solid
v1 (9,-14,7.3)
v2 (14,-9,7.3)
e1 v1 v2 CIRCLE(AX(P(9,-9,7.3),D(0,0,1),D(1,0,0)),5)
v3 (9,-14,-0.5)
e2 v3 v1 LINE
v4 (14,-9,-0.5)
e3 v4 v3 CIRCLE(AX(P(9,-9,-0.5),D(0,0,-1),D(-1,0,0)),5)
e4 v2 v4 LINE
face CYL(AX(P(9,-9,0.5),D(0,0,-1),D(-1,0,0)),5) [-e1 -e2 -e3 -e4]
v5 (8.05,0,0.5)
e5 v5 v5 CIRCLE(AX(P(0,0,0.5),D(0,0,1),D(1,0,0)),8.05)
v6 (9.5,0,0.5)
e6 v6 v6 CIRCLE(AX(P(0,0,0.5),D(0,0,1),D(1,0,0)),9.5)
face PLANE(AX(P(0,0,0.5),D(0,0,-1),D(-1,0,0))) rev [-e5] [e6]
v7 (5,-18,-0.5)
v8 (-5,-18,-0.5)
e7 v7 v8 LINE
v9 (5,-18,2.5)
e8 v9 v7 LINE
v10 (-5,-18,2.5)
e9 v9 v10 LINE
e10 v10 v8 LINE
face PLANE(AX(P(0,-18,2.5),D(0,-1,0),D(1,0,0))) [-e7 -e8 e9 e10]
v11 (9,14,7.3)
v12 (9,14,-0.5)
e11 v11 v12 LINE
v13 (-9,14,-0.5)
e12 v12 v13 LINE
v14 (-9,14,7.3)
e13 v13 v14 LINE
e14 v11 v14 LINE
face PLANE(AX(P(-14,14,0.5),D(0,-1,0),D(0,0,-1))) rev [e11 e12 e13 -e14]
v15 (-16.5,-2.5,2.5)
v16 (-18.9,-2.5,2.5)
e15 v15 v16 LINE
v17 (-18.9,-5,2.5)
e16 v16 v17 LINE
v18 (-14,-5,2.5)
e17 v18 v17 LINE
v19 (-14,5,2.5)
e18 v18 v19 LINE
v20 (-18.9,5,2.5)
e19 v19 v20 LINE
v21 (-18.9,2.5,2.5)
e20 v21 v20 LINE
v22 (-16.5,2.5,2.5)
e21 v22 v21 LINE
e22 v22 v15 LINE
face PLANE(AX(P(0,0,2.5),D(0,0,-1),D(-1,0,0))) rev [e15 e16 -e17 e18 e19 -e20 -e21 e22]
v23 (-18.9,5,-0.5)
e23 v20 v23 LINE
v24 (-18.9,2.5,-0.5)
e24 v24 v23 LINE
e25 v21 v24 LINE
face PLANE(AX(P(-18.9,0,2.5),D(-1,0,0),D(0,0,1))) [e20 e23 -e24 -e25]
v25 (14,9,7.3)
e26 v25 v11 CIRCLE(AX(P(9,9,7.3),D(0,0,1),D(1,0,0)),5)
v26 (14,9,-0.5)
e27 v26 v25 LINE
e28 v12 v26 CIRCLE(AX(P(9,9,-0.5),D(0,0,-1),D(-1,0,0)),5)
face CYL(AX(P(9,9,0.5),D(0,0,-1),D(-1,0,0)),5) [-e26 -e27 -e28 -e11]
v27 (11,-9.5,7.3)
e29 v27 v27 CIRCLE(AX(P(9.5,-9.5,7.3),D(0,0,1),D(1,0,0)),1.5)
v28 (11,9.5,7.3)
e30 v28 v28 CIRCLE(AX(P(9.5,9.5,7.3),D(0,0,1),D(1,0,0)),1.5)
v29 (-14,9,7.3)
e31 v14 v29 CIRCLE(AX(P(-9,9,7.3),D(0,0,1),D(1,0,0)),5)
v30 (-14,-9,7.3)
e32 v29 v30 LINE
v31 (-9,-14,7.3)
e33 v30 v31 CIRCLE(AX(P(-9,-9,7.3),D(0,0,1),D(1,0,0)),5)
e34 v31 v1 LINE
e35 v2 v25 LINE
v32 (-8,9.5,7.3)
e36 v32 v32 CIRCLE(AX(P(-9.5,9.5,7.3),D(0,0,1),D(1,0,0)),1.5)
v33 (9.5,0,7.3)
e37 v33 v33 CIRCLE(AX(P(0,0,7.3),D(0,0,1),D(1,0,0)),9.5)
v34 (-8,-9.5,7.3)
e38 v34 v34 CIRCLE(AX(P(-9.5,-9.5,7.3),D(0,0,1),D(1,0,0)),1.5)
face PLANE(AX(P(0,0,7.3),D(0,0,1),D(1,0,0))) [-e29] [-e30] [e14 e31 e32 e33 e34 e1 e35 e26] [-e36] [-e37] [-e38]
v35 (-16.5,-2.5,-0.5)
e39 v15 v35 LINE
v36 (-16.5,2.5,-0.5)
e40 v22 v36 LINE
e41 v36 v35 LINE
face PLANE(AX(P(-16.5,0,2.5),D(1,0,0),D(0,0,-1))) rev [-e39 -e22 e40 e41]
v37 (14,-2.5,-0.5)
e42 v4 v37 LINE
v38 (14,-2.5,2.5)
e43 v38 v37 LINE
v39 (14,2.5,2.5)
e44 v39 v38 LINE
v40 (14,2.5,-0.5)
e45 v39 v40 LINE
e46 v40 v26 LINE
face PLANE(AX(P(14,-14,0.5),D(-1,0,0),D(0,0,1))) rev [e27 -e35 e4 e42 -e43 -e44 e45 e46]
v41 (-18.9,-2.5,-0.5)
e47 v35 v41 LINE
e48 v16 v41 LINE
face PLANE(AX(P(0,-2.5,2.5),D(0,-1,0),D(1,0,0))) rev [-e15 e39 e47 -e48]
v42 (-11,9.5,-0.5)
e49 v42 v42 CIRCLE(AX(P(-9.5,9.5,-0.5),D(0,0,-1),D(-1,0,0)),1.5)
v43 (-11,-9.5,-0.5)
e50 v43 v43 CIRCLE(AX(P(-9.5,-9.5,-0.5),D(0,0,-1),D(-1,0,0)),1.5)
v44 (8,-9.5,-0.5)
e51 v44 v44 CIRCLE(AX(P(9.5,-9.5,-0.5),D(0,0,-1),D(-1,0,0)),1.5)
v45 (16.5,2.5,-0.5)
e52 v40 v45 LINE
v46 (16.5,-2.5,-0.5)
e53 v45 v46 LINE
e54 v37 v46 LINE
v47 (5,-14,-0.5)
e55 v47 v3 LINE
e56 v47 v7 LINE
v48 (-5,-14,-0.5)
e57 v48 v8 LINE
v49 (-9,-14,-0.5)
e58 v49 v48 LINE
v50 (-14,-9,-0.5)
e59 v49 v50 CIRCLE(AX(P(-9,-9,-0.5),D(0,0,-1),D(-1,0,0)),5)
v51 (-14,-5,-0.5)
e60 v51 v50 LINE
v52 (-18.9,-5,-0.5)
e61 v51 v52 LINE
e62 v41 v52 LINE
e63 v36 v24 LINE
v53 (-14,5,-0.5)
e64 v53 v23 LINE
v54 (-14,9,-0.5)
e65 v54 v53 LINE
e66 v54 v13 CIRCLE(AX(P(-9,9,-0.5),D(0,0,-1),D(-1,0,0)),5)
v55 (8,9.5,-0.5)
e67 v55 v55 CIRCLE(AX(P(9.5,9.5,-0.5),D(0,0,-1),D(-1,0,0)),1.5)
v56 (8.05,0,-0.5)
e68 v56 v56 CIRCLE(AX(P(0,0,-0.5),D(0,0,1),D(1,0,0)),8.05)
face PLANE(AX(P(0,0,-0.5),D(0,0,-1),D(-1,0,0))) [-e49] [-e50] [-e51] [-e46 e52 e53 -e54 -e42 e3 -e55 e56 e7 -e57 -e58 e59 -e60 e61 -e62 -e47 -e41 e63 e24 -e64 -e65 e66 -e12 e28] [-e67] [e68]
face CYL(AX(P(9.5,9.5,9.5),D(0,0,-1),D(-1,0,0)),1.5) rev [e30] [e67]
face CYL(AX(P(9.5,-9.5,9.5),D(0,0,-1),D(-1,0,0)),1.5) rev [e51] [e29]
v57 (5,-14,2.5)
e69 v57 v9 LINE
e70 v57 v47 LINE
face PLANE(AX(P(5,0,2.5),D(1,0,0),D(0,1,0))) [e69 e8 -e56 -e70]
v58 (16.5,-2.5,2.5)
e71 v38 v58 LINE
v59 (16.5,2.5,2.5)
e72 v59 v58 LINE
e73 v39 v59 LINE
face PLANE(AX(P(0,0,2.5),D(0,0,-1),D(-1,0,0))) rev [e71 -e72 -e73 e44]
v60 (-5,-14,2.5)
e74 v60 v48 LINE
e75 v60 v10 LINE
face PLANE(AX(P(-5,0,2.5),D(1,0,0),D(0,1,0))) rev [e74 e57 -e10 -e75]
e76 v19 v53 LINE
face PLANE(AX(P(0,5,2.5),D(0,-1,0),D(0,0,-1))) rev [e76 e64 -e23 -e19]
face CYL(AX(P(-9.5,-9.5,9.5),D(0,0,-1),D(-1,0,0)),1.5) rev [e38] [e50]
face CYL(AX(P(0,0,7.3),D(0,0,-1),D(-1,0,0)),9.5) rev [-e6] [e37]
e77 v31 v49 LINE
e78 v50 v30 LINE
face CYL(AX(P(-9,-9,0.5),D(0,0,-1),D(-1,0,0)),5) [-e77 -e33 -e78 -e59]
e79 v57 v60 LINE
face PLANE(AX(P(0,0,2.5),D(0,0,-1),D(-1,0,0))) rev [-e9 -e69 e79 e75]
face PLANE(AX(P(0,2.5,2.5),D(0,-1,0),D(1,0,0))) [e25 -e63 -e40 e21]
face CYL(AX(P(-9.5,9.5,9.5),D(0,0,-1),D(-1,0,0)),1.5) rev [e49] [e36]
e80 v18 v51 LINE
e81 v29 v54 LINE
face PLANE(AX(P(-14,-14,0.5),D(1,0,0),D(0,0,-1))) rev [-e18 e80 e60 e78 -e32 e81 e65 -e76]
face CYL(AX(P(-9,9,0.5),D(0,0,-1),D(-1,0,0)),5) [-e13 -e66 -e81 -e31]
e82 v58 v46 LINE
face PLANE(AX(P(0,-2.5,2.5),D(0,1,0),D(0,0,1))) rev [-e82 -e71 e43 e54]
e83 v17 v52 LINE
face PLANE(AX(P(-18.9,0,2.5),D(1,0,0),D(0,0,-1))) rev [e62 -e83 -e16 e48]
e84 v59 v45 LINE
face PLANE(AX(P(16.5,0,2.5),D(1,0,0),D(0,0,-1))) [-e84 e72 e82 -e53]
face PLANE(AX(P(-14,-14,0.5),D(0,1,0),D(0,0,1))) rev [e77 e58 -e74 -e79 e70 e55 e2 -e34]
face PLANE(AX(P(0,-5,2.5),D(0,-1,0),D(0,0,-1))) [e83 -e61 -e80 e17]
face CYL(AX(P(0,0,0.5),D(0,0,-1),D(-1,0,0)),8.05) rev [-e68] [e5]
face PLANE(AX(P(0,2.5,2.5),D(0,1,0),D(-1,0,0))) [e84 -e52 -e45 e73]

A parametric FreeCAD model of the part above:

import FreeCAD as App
import Part
import Sketcher


def edges_at(feature, points):
    """Names of the edges that pass closest to the given points."""
    edges = feature.Shape.Edges
    near = lambda p: min(range(len(edges)), key=lambda i: edges[i].distToShape(Part.Vertex(*p))[0])
    return sorted({f"Edge{near(p) + 1}" for p in points})

doc = App.newDocument("Part")
params = doc.addObject("Spreadsheet::Sheet", "Params")
for row, (alias, value) in enumerate([
    ("sketch1_diameter", "16.1 mm"),
    ("sketch1_width", "28 mm"),
    ("pad1_length", "1 mm"),
    ("sketch2_diameter", "19 mm"),
    ("sketch2_width", "28 mm"),
    ("pad2_length", "6.8 mm"),
    ("sketch3_width", "10 mm"),
    ("sketch3_height", "5 mm"),
    ("sketch3_height2", "4 mm"),
    ("sketch3_width2", "4.9 mm"),
    ("sketch3_width3", "2.4 mm"),
    ("pad3_length", "3 mm"),
    ("fillet_radius", "5 mm"),
    ("sketch4_diameter", "3 mm"),
    ("pocket1_length", "10 mm"),
], start=1):
    params.set(f"A{row}", alias)
    params.set(f"B{row}", "=" + value)
    params.setAlias(f"B{row}", alias)

body = doc.addObject("PartDesign::Body", "Body")

# Sketch on XY plane
sketch1 = body.newObject("Sketcher::SketchObject", "Sketch")
sketch1.AttachmentSupport = (doc.getObject("XY_Plane"), [""])
sketch1.MapMode = "FlatFace"
sketch1.addGeometry([
    Part.LineSegment(App.Vector(-14, 14, 0), App.Vector(-14, -14, 0)),  # 0
    Part.LineSegment(App.Vector(-14, -14, 0), App.Vector(14, -14, 0)),  # 1
    Part.LineSegment(App.Vector(14, -14, 0), App.Vector(14, 14, 0)),  # 2
    Part.LineSegment(App.Vector(14, 14, 0), App.Vector(-14, 14, 0)),  # 3
    Part.Circle(App.Vector(0, 0, 0), App.Vector(0, 0, 1), 8),  # 4
], False)
sketch1.addConstraint([
    Sketcher.Constraint("Coincident", 0, 2, 1, 1),
    Sketcher.Constraint("Coincident", 1, 2, 2, 1),
    Sketcher.Constraint("Coincident", 2, 2, 3, 1),
    Sketcher.Constraint("Coincident", 3, 2, 0, 1),
    Sketcher.Constraint("Vertical", 0),
    Sketcher.Constraint("Horizontal", 1),
    Sketcher.Constraint("Vertical", 2),
    Sketcher.Constraint("Horizontal", 3),
    Sketcher.Constraint("Coincident", 4, 3, -1, 1),
    Sketcher.Constraint("Symmetric", 0, 2, 2, 2, -1, 1),
    Sketcher.Constraint("Equal", 3, 0),
    Sketcher.Constraint("Diameter", 4, 16.1),
    Sketcher.Constraint("DistanceX", 1, 1, 1, 2, 28.0),
])
sketch1.setExpression("Constraints[11]", "Params.sketch1_diameter")
sketch1.setExpression("Constraints[12]", "Params.sketch1_width")
pad1 = body.newObject("PartDesign::Pad", "Pad")
pad1.Profile = sketch1
pad1.setExpression("Length", "Params.pad1_length")
pad1.Midplane = True

# Sketch on XY plane
sketch2 = body.newObject("Sketcher::SketchObject", "Sketch001")
sketch2.AttachmentSupport = (doc.getObject("XY_Plane"), [""])
sketch2.MapMode = "FlatFace"
sketch2.AttachmentOffset = App.Placement(App.Vector(0, 0, 0.5), App.Rotation())
sketch2.addGeometry([
    Part.LineSegment(App.Vector(-14, 14, 0), App.Vector(-14, -14, 0)),  # 0
    Part.LineSegment(App.Vector(-14, -14, 0), App.Vector(14, -14, 0)),  # 1
    Part.LineSegment(App.Vector(14, -14, 0), App.Vector(14, 14, 0)),  # 2
    Part.LineSegment(App.Vector(14, 14, 0), App.Vector(-14, 14, 0)),  # 3
    Part.Circle(App.Vector(0, 0, 0), App.Vector(0, 0, 1), 10),  # 4
], False)
sketch2.addConstraint([
    Sketcher.Constraint("Coincident", 0, 2, 1, 1),
    Sketcher.Constraint("Coincident", 1, 2, 2, 1),
    Sketcher.Constraint("Coincident", 2, 2, 3, 1),
    Sketcher.Constraint("Coincident", 3, 2, 0, 1),
    Sketcher.Constraint("Vertical", 0),
    Sketcher.Constraint("Horizontal", 1),
    Sketcher.Constraint("Vertical", 2),
    Sketcher.Constraint("Horizontal", 3),
    Sketcher.Constraint("Coincident", 4, 3, -1, 1),
    Sketcher.Constraint("Symmetric", 0, 2, 2, 2, -1, 1),
    Sketcher.Constraint("Equal", 3, 0),
    Sketcher.Constraint("Diameter", 4, 19.0),
    Sketcher.Constraint("DistanceX", 1, 1, 1, 2, 28.0),
])
sketch2.setExpression("Constraints[11]", "Params.sketch2_diameter")
sketch2.setExpression("Constraints[12]", "Params.sketch2_width")
pad2 = body.newObject("PartDesign::Pad", "Pad001")
pad2.Profile = sketch2
pad2.setExpression("Length", "Params.pad2_length")

# Sketch on XY plane
sketch3 = body.newObject("Sketcher::SketchObject", "Sketch002")
sketch3.AttachmentSupport = (doc.getObject("XY_Plane"), [""])
sketch3.MapMode = "FlatFace"
sketch3.AttachmentOffset = App.Placement(App.Vector(0, 0, -0.5), App.Rotation())
sketch3.addGeometry([
    Part.LineSegment(App.Vector(16.5, 2.5, 0), App.Vector(16.5, -2.5, 0)),  # 0
    Part.LineSegment(App.Vector(16.5, -2.5, 0), App.Vector(14, -2.5, 0)),  # 1
    Part.LineSegment(App.Vector(14, -2.5, 0), App.Vector(14, 2.5, 0)),  # 2
    Part.LineSegment(App.Vector(14, 2.5, 0), App.Vector(16.5, 2.5, 0)),  # 3
    Part.LineSegment(App.Vector(5, -14, 0), App.Vector(5, -18, 0)),  # 4
    Part.LineSegment(App.Vector(5, -18, 0), App.Vector(-5, -18, 0)),  # 5
    Part.LineSegment(App.Vector(-5, -18, 0), App.Vector(-5, -14, 0)),  # 6
    Part.LineSegment(App.Vector(-5, -14, 0), App.Vector(5, -14, 0)),  # 7
    Part.LineSegment(App.Vector(-14, -5, 0), App.Vector(-18.9, -5, 0)),  # 8
    Part.LineSegment(App.Vector(-18.9, -5, 0), App.Vector(-18.9, -2.5, 0)),  # 9
    Part.LineSegment(App.Vector(-18.9, -2.5, 0), App.Vector(-16.5, -2.5, 0)),  # 10
    Part.LineSegment(App.Vector(-16.5, -2.5, 0), App.Vector(-16.5, 2.5, 0)),  # 11
    Part.LineSegment(App.Vector(-16.5, 2.5, 0), App.Vector(-18.9, 2.5, 0)),  # 12
    Part.LineSegment(App.Vector(-18.9, 2.5, 0), App.Vector(-18.9, 5, 0)),  # 13
    Part.LineSegment(App.Vector(-18.9, 5, 0), App.Vector(-14, 5, 0)),  # 14
    Part.LineSegment(App.Vector(-14, 5, 0), App.Vector(-14, -5, 0)),  # 15
], False)
sketch3.addConstraint([
    Sketcher.Constraint("Coincident", 0, 2, 1, 1),
    Sketcher.Constraint("Coincident", 1, 2, 2, 1),
    Sketcher.Constraint("Coincident", 2, 2, 3, 1),
    Sketcher.Constraint("Coincident", 3, 2, 0, 1),
    Sketcher.Constraint("Coincident", 4, 2, 5, 1),
    Sketcher.Constraint("Coincident", 5, 2, 6, 1),
    Sketcher.Constraint("Coincident", 6, 2, 7, 1),
    Sketcher.Constraint("Coincident", 7, 2, 4, 1),
    Sketcher.Constraint("Coincident", 8, 2, 9, 1),
    Sketcher.Constraint("Coincident", 9, 2, 10, 1),
    Sketcher.Constraint("Coincident", 10, 2, 11, 1),
    Sketcher.Constraint("Coincident", 11, 2, 12, 1),
    Sketcher.Constraint("Coincident", 12, 2, 13, 1),
    Sketcher.Constraint("Coincident", 13, 2, 14, 1),
    Sketcher.Constraint("Coincident", 14, 2, 15, 1),
    Sketcher.Constraint("Coincident", 15, 2, 8, 1),
    Sketcher.Constraint("Vertical", 0),
    Sketcher.Constraint("Horizontal", 1),
    Sketcher.Constraint("Vertical", 2),
    Sketcher.Constraint("Horizontal", 3),
    Sketcher.Constraint("Vertical", 4),
    Sketcher.Constraint("Horizontal", 5),
    Sketcher.Constraint("Vertical", 6),
    Sketcher.Constraint("Horizontal", 7),
    Sketcher.Constraint("Horizontal", 8),
    Sketcher.Constraint("Vertical", 9),
    Sketcher.Constraint("Horizontal", 10),
    Sketcher.Constraint("Vertical", 11),
    Sketcher.Constraint("Horizontal", 12),
    Sketcher.Constraint("Vertical", 13),
    Sketcher.Constraint("Horizontal", 14),
    Sketcher.Constraint("Vertical", 15),
    Sketcher.Constraint("Symmetric", 3, 2, 10, 2, -1, 1),
    Sketcher.Constraint("Symmetric", 9, 2, 12, 2, -1),
    Sketcher.Constraint("Horizontal", 1, 2, 9, 2),
    Sketcher.Constraint("Equal", 3, 9),
    Sketcher.Constraint("Equal", 9, 13),
    Sketcher.Constraint("Equal", 7, 15),
    Sketcher.Constraint("DistanceX", 5, 2, 5, 1, 10.0),
    Sketcher.Constraint("DistanceY", 0, 2, 0, 1, 5.0),
    Sketcher.Constraint("DistanceY", 4, 2, 4, 1, 4.0),
    Sketcher.Constraint("DistanceX", 8, 2, 8, 1, 4.9),
    Sketcher.Constraint("DistanceX", 10, 1, 10, 2, 2.4),
    Sketcher.Constraint("DistanceX", -1, 1, 1, 2, 14.0),
    Sketcher.Constraint("DistanceX", -1, 1, 4, 2, 5.0),
    Sketcher.Constraint("DistanceY", 4, 2, -1, 1, 18.0),
])
sketch3.setExpression("Constraints[38]", "Params.sketch3_width")
sketch3.setExpression("Constraints[39]", "Params.sketch3_height")
sketch3.setExpression("Constraints[40]", "Params.sketch3_height2")
sketch3.setExpression("Constraints[41]", "Params.sketch3_width2")
sketch3.setExpression("Constraints[42]", "Params.sketch3_width3")
pad3 = body.newObject("PartDesign::Pad", "Pad002")
pad3.Profile = sketch3
pad3.setExpression("Length", "Params.pad3_length")
doc.recompute()

fillet = body.newObject("PartDesign::Fillet", "Fillet")
fillet.Base = (pad3, edges_at(pad3, [
    (14, -14, 3.4),
    (-14, -14, 3.4),
    (-14, 14, 3.4),
    (14, 14, 3.4),
]))
fillet.setExpression("Radius", "Params.fillet_radius")

# Sketch on XY plane
sketch4 = body.newObject("Sketcher::SketchObject", "Sketch003")
sketch4.AttachmentSupport = (doc.getObject("XY_Plane"), [""])
sketch4.MapMode = "FlatFace"
sketch4.AttachmentOffset = App.Placement(App.Vector(0, 0, -0.5), App.Rotation())
sketch4.addGeometry([
    Part.Circle(App.Vector(9.5, 9.5, 0), App.Vector(0, 0, 1), 1.5),
    Part.Circle(App.Vector(-9.5, 9.5, 0), App.Vector(0, 0, 1), 1.5),
    Part.Circle(App.Vector(-9.5, -9.5, 0), App.Vector(0, 0, 1), 1.5),
    Part.Circle(App.Vector(9.5, -9.5, 0), App.Vector(0, 0, 1), 1.5),
], False)
sketch4.addConstraint([
    Sketcher.Constraint("Equal", 0, 1),
    Sketcher.Constraint("Equal", 1, 2),
    Sketcher.Constraint("Equal", 2, 3),
    Sketcher.Constraint("Symmetric", 0, 3, 2, 3, -1, 1),
    Sketcher.Constraint("Symmetric", 1, 3, 3, 3, -1, 1),
    Sketcher.Constraint("Symmetric", 0, 3, 1, 3, -2),
    Sketcher.Constraint("Diameter", 0, 3.0),
    Sketcher.Constraint("DistanceX", 1, 3, 0, 3, 19.0),
    Sketcher.Constraint("DistanceY", 2, 3, 1, 3, 19.0),
])
sketch4.setExpression("Constraints[6]", "Params.sketch4_diameter")
pocket1 = body.newObject("PartDesign::Pocket", "Pocket")
pocket1.Profile = sketch4
pocket1.setExpression("Length", "Params.pocket1_length")
pocket1.Reversed = True

doc.recompute()
